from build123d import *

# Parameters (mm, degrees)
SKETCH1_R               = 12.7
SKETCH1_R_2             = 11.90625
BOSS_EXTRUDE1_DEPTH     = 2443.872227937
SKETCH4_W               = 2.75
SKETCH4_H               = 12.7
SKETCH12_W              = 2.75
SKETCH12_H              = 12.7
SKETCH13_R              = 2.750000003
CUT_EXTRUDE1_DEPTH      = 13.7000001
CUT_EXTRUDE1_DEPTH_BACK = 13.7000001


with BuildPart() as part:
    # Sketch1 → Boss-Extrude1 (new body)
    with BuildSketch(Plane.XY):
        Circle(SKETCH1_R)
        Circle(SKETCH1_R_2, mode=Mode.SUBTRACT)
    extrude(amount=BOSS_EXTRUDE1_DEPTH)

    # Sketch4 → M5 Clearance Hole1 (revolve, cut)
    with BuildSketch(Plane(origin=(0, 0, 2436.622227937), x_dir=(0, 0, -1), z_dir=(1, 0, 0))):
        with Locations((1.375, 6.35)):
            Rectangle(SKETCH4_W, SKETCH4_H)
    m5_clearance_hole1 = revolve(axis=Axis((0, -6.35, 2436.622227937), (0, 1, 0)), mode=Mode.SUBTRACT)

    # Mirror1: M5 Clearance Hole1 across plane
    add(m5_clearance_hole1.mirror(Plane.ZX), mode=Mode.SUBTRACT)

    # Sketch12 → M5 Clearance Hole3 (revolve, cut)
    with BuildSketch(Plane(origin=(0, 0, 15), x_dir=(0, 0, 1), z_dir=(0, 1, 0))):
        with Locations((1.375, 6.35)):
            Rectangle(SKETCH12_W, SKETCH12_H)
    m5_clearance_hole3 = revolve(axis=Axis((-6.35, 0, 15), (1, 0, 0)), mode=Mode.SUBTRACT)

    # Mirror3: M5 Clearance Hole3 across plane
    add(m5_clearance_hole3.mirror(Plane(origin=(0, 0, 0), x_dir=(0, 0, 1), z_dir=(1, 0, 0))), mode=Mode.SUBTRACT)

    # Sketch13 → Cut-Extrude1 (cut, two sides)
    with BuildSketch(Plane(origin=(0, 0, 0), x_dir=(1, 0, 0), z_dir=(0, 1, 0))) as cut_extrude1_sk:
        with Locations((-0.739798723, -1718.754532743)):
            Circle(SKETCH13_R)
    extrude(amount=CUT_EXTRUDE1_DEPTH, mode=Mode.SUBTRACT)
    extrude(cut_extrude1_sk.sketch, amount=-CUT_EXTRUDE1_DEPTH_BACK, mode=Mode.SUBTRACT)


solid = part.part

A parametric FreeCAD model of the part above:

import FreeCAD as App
import Part
import Sketcher
Q = App.Units.Quantity

doc = App.newDocument("Part")
body = doc.addObject("PartDesign::Body", "Body")

# Sketch on XY plane
sketch1 = body.newObject("Sketcher::SketchObject", "Sketch")
sketch1.AttachmentSupport = (doc.getObject("XY_Plane"), [""])
sketch1.MapMode = "FlatFace"
sketch1.addGeometry([
    Part.Circle(App.Vector(0, 0, 0), App.Vector(0, 0, 1), 12.7),
    Part.Circle(App.Vector(0, 0, 0), App.Vector(0, 0, 1), 11.90625),
], False)
sketch1.addConstraint([
    Sketcher.Constraint("Coincident", 0, 3, -1, 1),
    Sketcher.Constraint("Coincident", 1, 3, -1, 1),
    Sketcher.Constraint("Diameter", 0, Q("1 in")),
    Sketcher.Constraint("Diameter", 1, Q("0.9375 in")),
])
pad1 = body.newObject("PartDesign::Pad", "Pad")
pad1.Profile = sketch1
pad1.Length = 2443.872228

# Sketch on YZ plane
sketch2 = body.newObject("Sketcher::SketchObject", "Sketch001")
sketch2.AttachmentSupport = (doc.getObject("YZ_Plane"), [""])
sketch2.MapMode = "FlatFace"
sketch2.addGeometry([
    Part.LineSegment(App.Vector(12.7, 2436.622228, 0), App.Vector(0, 2436.622228, 0)),
    Part.LineSegment(App.Vector(0, 2436.622228, 0), App.Vector(0, 2433.872228, 0)),
    Part.LineSegment(App.Vector(0, 2433.872228, 0), App.Vector(12.7, 2433.872228, 0)),
    Part.LineSegment(App.Vector(12.7, 2433.872228, 0), App.Vector(12.7, 2436.622228, 0)),
], False)
sketch2.addGeometry(Part.LineSegment(App.Vector(0, 2436.622228, 0), App.Vector(12.7, 2436.622228, 0)), True)  # axis
sketch2.addConstraint([
    Sketcher.Constraint("Coincident", 0, 2, 1, 1),
    Sketcher.Constraint("Coincident", 1, 2, 2, 1),
    Sketcher.Constraint("Coincident", 2, 2, 3, 1),
    Sketcher.Constraint("Coincident", 3, 2, 0, 1),
    Sketcher.Constraint("Horizontal", 0),
    Sketcher.Constraint("Vertical", 1),
    Sketcher.Constraint("Horizontal", 2),
    Sketcher.Constraint("Vertical", 3),
    Sketcher.Constraint("Horizontal", 4),
    Sketcher.Constraint("Coincident", 4, 1, 0, 2),
    Sketcher.Constraint("PointOnObject", 0, 2, -2),
    Sketcher.Constraint("Vertical", 2, 2, 4, 2),
    Sketcher.Constraint("DistanceX", 0, 2, 0, 1, Q("0.5 in")),
    Sketcher.Constraint("DistanceY", 1, 2, 1, 1, Q("2.75 mm")),
    Sketcher.Constraint("DistanceY", -1, 1, 0, 2, Q("2436.622228 mm")),
])
groove = body.newObject("PartDesign::Groove", "Groove")
groove.Profile = sketch2
groove.ReferenceAxis = (sketch2, ["Axis0"])
groove.Angle = 360
doc.recompute()

mirrored = body.newObject("PartDesign::Mirrored", "Mirrored")
mirrored.Originals = [groove]
mirrored.MirrorPlane = (doc.getObject("XZ_Plane"), [""])
body.Tip = mirrored

# Sketch on XZ plane
sketch3 = body.newObject("Sketcher::SketchObject", "Sketch002")
sketch3.AttachmentSupport = (doc.getObject("XZ_Plane"), [""])
sketch3.MapMode = "FlatFace"
sketch3.addGeometry([
    Part.LineSegment(App.Vector(12.7, 15, 0), App.Vector(0, 15, 0)),
    Part.LineSegment(App.Vector(0, 15, 0), App.Vector(0, 17.75, 0)),
    Part.LineSegment(App.Vector(0, 17.75, 0), App.Vector(12.7, 17.75, 0)),
    Part.LineSegment(App.Vector(12.7, 17.75, 0), App.Vector(12.7, 15, 0)),
], False)
sketch3.addGeometry(Part.LineSegment(App.Vector(0, 15, 0), App.Vector(12.7, 15, 0)), True)  # axis
sketch3.addConstraint([
    Sketcher.Constraint("Coincident", 0, 2, 1, 1),
    Sketcher.Constraint("Coincident", 1, 2, 2, 1),
    Sketcher.Constraint("Coincident", 2, 2, 3, 1),
    Sketcher.Constraint("Coincident", 3, 2, 0, 1),
    Sketcher.Constraint("Horizontal", 0),
    Sketcher.Constraint("Vertical", 1),
    Sketcher.Constraint("Horizontal", 2),
    Sketcher.Constraint("Vertical", 3),
    Sketcher.Constraint("Horizontal", 4),
    Sketcher.Constraint("Coincident", 4, 1, 0, 2),
    Sketcher.Constraint("PointOnObject", 0, 2, -2),
    Sketcher.Constraint("Vertical", 2, 2, 4, 2),
    Sketcher.Constraint("DistanceX", 0, 2, 0, 1, Q("0.5 in")),
    Sketcher.Constraint("DistanceY", 1, 1, 1, 2, Q("2.75 mm")),
    Sketcher.Constraint("DistanceY", -1, 1, 0, 2, Q("15 mm")),
])
groove2 = body.newObject("PartDesign::Groove", "Groove001")
groove2.Profile = sketch3
groove2.ReferenceAxis = (sketch3, ["Axis0"])
groove2.Angle = 360
doc.recompute()

mirrored2 = body.newObject("PartDesign::Mirrored", "Mirrored001")
mirrored2.Originals = [groove2]
mirrored2.MirrorPlane = (doc.getObject("YZ_Plane"), [""])
body.Tip = mirrored2

# Sketch on XZ plane
sketch4 = body.newObject("Sketcher::SketchObject", "Sketch003")
sketch4.AttachmentSupport = (doc.getObject("XZ_Plane"), [""])
sketch4.MapMode = "FlatFace"
sketch4.addGeometry(Part.Circle(App.Vector(-0.739799, 1718.754533, 0), App.Vector(0, 0, 1), 2.75), False)
sketch4.addConstraint([
    Sketcher.Constraint("Diameter", 0, Q("5.5 mm")),
    Sketcher.Constraint("DistanceX", 0, 3, -1, 1, Q("0.739799 mm")),
    Sketcher.Constraint("DistanceY", -1, 1, 0, 3, Q("1718.754533 mm")),
])
pocket1 = body.newObject("PartDesign::Pocket", "Pocket")
pocket1.Profile = sketch4
pocket1.Type = "ThroughAll"
pocket1.Midplane = True

doc.recompute()
